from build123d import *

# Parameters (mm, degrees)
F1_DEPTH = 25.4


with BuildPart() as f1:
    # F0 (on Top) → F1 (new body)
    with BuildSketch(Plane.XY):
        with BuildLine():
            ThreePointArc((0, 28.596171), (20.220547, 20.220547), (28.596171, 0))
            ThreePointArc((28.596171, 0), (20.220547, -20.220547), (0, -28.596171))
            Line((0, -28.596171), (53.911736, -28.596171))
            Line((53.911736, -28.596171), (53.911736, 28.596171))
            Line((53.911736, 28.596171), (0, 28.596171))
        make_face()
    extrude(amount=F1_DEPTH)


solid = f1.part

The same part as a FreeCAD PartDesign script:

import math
import FreeCAD as App
import Part
import Sketcher
from FreeCAD import Vector

doc = App.newDocument("Part")
params = doc.addObject("Spreadsheet::Sheet", "Params")
for row, (alias, value) in enumerate([
    ("pad1_length", "1 in"),
], start=1):
    params.set(f"A{row}", alias)
    params.set(f"B{row}", "=" + value)
    params.setAlias(f"B{row}", alias)

body = doc.addObject("PartDesign::Body", "Body")

# Sketch on XY plane
sketch1 = body.newObject("Sketcher::SketchObject", "Sketch")
sketch1.AttachmentSupport = (doc.getObject("XY_Plane"), [""])
sketch1.MapMode = "FlatFace"
sketch1.addGeometry([
    Part.ArcOfCircle(Part.Circle(Vector(0, 0, 0), Vector(0, 0, 1), 29), math.radians(0), math.radians(90)),  # 0
    Part.ArcOfCircle(Part.Circle(Vector(0, 0, 0), Vector(0, 0, 1), 29), math.radians(-90), math.radians(0)),  # 1
    Part.LineSegment(Vector(0, -29, 0), Vector(54, -29, 0)),  # 2
    Part.LineSegment(Vector(54, -29, 0), Vector(54, 29, 0)),  # 3
    Part.LineSegment(Vector(54, 29, 0), Vector(0, 29, 0)),  # 4
], False)
sketch1.addConstraint([
    Sketcher.Constraint("Tangent", 0, 1, 1, 2),
    Sketcher.Constraint("Tangent", 1, 1, 2, 1),
    Sketcher.Constraint("Coincident", 2, 2, 3, 1),
    Sketcher.Constraint("Coincident", 3, 2, 4, 1),
    Sketcher.Constraint("Tangent", 4, 2, 0, 2),
    Sketcher.Constraint("Horizontal", 2),
    Sketcher.Constraint("Vertical", 3),
    Sketcher.Constraint("Horizontal", 4),
    Sketcher.Constraint("Coincident", 0, 3, -1, 1),
    Sketcher.Constraint("Equal", 0, 1),
    Sketcher.Constraint("PointOnObject", 0, 1, -1),
    Sketcher.Constraint("Radius", 0, 28.596169),
    Sketcher.Constraint("DistanceX", 2, 1, 2, 2, 53.911736),
])
pad1 = body.newObject("PartDesign::Pad", "Pad")
pad1.Profile = sketch1
pad1.setExpression("Length", "Params.pad1_length")

doc.recompute()
